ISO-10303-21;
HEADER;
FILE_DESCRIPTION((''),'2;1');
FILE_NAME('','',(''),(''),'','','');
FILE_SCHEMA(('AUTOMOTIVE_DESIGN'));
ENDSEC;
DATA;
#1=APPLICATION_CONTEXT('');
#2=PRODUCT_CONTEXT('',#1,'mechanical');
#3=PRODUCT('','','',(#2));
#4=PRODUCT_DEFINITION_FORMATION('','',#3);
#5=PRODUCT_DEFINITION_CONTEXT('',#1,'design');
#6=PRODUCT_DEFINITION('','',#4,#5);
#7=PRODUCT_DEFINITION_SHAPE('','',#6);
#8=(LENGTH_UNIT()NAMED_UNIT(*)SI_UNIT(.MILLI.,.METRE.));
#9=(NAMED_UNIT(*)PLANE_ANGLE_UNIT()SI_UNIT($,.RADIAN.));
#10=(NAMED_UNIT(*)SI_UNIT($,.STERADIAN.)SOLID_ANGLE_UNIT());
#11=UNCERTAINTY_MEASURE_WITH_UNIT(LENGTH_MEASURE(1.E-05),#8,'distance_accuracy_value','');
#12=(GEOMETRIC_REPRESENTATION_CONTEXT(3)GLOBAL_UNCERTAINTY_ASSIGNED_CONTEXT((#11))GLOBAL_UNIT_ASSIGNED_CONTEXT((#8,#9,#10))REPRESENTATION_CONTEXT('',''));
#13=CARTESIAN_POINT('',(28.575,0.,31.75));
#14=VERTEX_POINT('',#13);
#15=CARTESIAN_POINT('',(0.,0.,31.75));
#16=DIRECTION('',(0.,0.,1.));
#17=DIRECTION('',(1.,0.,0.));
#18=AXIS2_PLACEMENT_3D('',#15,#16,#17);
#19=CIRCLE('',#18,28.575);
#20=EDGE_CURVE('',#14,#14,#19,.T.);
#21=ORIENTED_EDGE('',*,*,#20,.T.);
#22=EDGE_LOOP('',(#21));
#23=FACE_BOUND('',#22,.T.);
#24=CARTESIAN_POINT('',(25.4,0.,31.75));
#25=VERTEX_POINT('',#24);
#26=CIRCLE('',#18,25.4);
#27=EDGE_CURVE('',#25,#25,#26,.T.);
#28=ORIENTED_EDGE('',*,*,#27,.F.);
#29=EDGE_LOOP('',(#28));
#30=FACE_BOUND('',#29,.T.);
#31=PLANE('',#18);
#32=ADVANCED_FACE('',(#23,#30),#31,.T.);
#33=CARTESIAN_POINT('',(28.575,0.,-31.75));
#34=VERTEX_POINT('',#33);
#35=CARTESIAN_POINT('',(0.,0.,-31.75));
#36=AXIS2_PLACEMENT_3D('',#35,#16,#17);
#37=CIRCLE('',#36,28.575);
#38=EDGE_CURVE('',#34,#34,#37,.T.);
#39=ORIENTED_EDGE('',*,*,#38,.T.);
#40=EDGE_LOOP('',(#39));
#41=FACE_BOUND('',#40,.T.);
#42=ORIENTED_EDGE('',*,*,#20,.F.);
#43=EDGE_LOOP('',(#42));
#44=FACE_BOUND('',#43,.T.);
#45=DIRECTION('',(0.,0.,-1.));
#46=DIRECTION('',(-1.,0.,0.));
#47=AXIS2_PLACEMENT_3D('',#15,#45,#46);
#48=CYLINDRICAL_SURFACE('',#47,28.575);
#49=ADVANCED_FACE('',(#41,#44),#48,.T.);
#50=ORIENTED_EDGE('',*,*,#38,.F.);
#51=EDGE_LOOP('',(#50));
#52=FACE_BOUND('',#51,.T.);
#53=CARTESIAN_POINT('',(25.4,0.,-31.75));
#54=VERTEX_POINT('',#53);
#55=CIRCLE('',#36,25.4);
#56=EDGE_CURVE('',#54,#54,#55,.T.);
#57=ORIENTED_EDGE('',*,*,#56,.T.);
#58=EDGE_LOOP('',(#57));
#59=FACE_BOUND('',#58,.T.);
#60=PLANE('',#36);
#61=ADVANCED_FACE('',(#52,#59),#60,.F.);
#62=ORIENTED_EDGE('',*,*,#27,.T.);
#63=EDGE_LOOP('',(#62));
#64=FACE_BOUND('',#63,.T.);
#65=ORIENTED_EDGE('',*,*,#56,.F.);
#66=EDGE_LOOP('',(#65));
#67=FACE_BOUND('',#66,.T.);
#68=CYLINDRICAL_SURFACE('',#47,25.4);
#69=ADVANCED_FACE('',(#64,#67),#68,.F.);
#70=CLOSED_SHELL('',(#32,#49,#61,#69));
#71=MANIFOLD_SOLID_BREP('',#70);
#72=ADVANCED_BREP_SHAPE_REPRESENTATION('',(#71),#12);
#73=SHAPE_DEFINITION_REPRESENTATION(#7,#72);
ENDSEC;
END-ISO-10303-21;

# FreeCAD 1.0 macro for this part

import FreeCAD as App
import Part
import Sketcher
from FreeCAD import Vector
Q = App.Units.Quantity

doc = App.newDocument("Part")
params = doc.addObject("Spreadsheet::Sheet", "Params")
for row, (alias, value) in enumerate([
    ("sketch1_diameter", "2 in"),
    ("sketch1_diameter2", "2.25 in"),
    ("pad1_length", "2.5 in"),
], start=1):
    params.set(f"A{row}", alias)
    params.set(f"B{row}", "=" + value)
    params.setAlias(f"B{row}", alias)

body = doc.addObject("PartDesign::Body", "Body")

# Sketch on XY plane
sketch1 = doc.addObject("Sketcher::SketchObject", "Sketch")
body.addObject(sketch1)
sketch1.AttachmentSupport = (doc.XY_Plane, [""])
sketch1.MapMode = "FlatFace"
sketch1.addGeometry([
    Part.Circle(Vector(0, 0, 0), Vector(0, 0, 1), 29),
    Part.Circle(Vector(0, 0, 0), Vector(0, 0, 1), 25),
], False)
sketch1.addConstraint([
    Sketcher.Constraint("Coincident", 0, 3, -1, 1),
    Sketcher.Constraint("Coincident", 1, 3, -1, 1),
    Sketcher.Constraint("Diameter", 1, Q("2 in")),
    Sketcher.Constraint("Diameter", 0, Q("2.25 in")),
])
sketch1.setExpression("Constraints[2]", "Params.sketch1_diameter")
sketch1.setExpression("Constraints[3]", "Params.sketch1_diameter2")
pad1 = doc.addObject("PartDesign::Pad", "Pad")
body.addObject(pad1)
pad1.Profile = sketch1
pad1.setExpression("Length", "Params.pad1_length")
pad1.Midplane = True

doc.recompute()
